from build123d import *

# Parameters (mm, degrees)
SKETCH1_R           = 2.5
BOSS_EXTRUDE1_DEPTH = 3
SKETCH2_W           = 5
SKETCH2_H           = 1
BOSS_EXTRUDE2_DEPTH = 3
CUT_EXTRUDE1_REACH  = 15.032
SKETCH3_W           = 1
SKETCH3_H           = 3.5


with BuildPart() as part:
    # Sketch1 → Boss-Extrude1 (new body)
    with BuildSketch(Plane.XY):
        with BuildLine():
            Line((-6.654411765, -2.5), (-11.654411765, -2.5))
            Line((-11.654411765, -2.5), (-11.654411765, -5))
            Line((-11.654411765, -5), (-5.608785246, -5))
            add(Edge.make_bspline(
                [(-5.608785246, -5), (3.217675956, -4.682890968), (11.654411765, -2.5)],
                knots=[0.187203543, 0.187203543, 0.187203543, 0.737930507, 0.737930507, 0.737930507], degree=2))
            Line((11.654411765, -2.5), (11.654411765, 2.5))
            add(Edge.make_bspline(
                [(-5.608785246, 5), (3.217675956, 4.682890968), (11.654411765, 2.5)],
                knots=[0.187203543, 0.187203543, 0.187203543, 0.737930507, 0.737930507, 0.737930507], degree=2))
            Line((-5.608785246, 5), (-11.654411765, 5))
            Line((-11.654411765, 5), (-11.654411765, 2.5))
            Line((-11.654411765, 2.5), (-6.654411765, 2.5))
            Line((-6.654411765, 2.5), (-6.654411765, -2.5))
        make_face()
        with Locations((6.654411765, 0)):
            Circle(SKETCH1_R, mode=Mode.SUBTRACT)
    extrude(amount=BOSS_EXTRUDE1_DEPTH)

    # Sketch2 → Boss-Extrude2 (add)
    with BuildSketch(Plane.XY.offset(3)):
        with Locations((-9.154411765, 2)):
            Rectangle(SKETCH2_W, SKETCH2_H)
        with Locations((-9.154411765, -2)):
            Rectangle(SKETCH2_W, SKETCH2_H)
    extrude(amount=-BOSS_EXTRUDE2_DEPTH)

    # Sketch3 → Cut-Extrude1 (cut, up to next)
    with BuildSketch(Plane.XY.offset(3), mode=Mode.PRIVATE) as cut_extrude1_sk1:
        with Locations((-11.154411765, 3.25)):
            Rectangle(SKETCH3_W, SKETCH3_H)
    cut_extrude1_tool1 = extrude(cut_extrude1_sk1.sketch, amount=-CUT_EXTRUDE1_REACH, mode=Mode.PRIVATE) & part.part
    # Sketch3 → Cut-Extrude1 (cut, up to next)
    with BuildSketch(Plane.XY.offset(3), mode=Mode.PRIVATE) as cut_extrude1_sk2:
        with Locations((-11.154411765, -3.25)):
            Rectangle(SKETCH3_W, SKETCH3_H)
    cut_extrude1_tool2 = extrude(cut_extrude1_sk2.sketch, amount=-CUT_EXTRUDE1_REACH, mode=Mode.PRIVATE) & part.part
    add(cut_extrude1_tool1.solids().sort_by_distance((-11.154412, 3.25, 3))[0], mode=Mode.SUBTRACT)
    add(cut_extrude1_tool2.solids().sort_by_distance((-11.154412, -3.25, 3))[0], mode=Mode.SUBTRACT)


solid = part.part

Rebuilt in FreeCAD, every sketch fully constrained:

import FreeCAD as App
import Part
import Sketcher

doc = App.newDocument("Part")
params = doc.addObject("Spreadsheet::Sheet", "Params")
for row, (alias, value) in enumerate([
    ("sketch1_diameter", "5 mm"),
    ("pad1_length", "3 mm"),
    ("sketch2_width", "5 mm"),
    ("sketch2_height", "1 mm"),
    ("pad2_length", "3 mm"),
    ("sketch3_width", "1 mm"),
    ("sketch3_height", "3.5 mm"),
    ("sketch4_width", "1 mm"),
    ("sketch4_height", "3.5 mm"),
], start=1):
    params.set(f"A{row}", alias)
    params.set(f"B{row}", "=" + value)
    params.setAlias(f"B{row}", alias)

body = doc.addObject("PartDesign::Body", "Body")

sketch1 = body.newObject("Sketcher::SketchObject", "Sketch")
sketch1.AttachmentSupport = (doc.getObject("XY_Plane"), [""])
sketch1.MapMode = "FlatFace"
sketch1.addGeometry(Part.LineSegment(App.Vector(-6.654412, -2.5, 0), App.Vector(-11.654412, -2.5, 0)), False)
sketch1.addGeometry(Part.LineSegment(App.Vector(-11.654412, -2.5, 0), App.Vector(-11.654412, -5, 0)), False)
sketch1.addGeometry(Part.LineSegment(App.Vector(-11.654412, -5, 0), App.Vector(-5.608785, -5, 0)), False)
sketch1.addGeometry(Part.BSplineCurve([App.Vector(-5.608785, -5, 0), App.Vector(3.217676, -4.682891, 0), App.Vector(11.654412, -2.5, 0)], [3, 3], [0.187203543, 0.737930507], False, 2, [1, 1, 1], False), False)
sketch1.addGeometry(Part.LineSegment(App.Vector(11.654412, -2.5, 0), App.Vector(11.654412, 2.5, 0)), False)
sketch1.addGeometry(Part.BSplineCurve([App.Vector(-5.608785, 5, 0), App.Vector(3.217676, 4.682891, 0), App.Vector(11.654412, 2.5, 0)], [3, 3], [0.187203543, 0.737930507], False, 2, [1, 1, 1], False), False)
sketch1.addGeometry(Part.LineSegment(App.Vector(-5.608785, 5, 0), App.Vector(-11.654412, 5, 0)), False)
sketch1.addGeometry(Part.LineSegment(App.Vector(-11.654412, 5, 0), App.Vector(-11.654412, 2.5, 0)), False)
sketch1.addGeometry(Part.LineSegment(App.Vector(-11.654412, 2.5, 0), App.Vector(-6.654412, 2.5, 0)), False)
sketch1.addGeometry(Part.LineSegment(App.Vector(-6.654412, 2.5, 0), App.Vector(-6.654412, -2.5, 0)), False)
sketch1.addGeometry(Part.Circle(App.Vector(6.654412, 0, 0), App.Vector(0, 0, 1), 2.5), False)
sketch1.addConstraint(Sketcher.Constraint("Block", 3))
sketch1.addConstraint(Sketcher.Constraint("Block", 5))
sketch1.addConstraint(Sketcher.Constraint("Coincident", 0, 2, 1, 1))
sketch1.addConstraint(Sketcher.Constraint("Coincident", 1, 2, 2, 1))
sketch1.addConstraint(Sketcher.Constraint("Coincident", 2, 2, 3, 1))
sketch1.addConstraint(Sketcher.Constraint("Coincident", 3, 2, 4, 1))
sketch1.addConstraint(Sketcher.Constraint("Coincident", 4, 2, 5, 2))
sketch1.addConstraint(Sketcher.Constraint("Coincident", 5, 1, 6, 1))
sketch1.addConstraint(Sketcher.Constraint("Coincident", 6, 2, 7, 1))
sketch1.addConstraint(Sketcher.Constraint("Coincident", 7, 2, 8, 1))
sketch1.addConstraint(Sketcher.Constraint("Coincident", 8, 2, 9, 1))
sketch1.addConstraint(Sketcher.Constraint("Coincident", 9, 2, 0, 1))
sketch1.addConstraint(Sketcher.Constraint("Horizontal", 0))
sketch1.addConstraint(Sketcher.Constraint("Vertical", 1))
sketch1.addConstraint(Sketcher.Constraint("Horizontal", 2))
sketch1.addConstraint(Sketcher.Constraint("Horizontal", 6))
sketch1.addConstraint(Sketcher.Constraint("Vertical", 7))
sketch1.addConstraint(Sketcher.Constraint("Horizontal", 8))
sketch1.addConstraint(Sketcher.Constraint("Vertical", 9))
sketch1.addConstraint(Sketcher.Constraint("Symmetric", 0, 2, 4, 2, -1, 1))
sketch1.addConstraint(Sketcher.Constraint("Symmetric", 4, 2, 7, 2, -2))
sketch1.addConstraint(Sketcher.Constraint("PointOnObject", 10, 3, -1))
sketch1.addConstraint(Sketcher.Constraint("Equal", 8, 4))
sketch1.addConstraint(Sketcher.Constraint("Diameter", 10, 5.0))
sketch1.addConstraint(Sketcher.Constraint("DistanceX", 10, 3, 4, 2, 5.0))
sketch1.setExpression("Constraints[23]", "Params.sketch1_diameter")
pad1 = body.newObject("PartDesign::Pad", "Pad")
pad1.Profile = sketch1
pad1.setExpression("Length", "Params.pad1_length")

sketch2 = body.newObject("Sketcher::SketchObject", "Sketch001")
sketch2.AttachmentSupport = (doc.getObject("XY_Plane"), [""])
sketch2.MapMode = "FlatFace"
sketch2.AttachmentOffset = App.Placement(App.Vector(0, 0, 3), App.Rotation())
sketch2.addGeometry(Part.LineSegment(App.Vector(-11.654412, 2.5, 0), App.Vector(-11.654412, 1.5, 0)), False)
sketch2.addGeometry(Part.LineSegment(App.Vector(-11.654412, 1.5, 0), App.Vector(-6.654412, 1.5, 0)), False)
sketch2.addGeometry(Part.LineSegment(App.Vector(-6.654412, 1.5, 0), App.Vector(-6.654412, 2.5, 0)), False)
sketch2.addGeometry(Part.LineSegment(App.Vector(-6.654412, 2.5, 0), App.Vector(-11.654412, 2.5, 0)), False)
sketch2.addGeometry(Part.LineSegment(App.Vector(-11.654412, -1.5, 0), App.Vector(-11.654412, -2.5, 0)), False)
sketch2.addGeometry(Part.LineSegment(App.Vector(-11.654412, -2.5, 0), App.Vector(-6.654412, -2.5, 0)), False)
sketch2.addGeometry(Part.LineSegment(App.Vector(-6.654412, -2.5, 0), App.Vector(-6.654412, -1.5, 0)), False)
sketch2.addGeometry(Part.LineSegment(App.Vector(-6.654412, -1.5, 0), App.Vector(-11.654412, -1.5, 0)), False)
sketch2.addConstraint(Sketcher.Constraint("Coincident", 0, 2, 1, 1))
sketch2.addConstraint(Sketcher.Constraint("Coincident", 1, 2, 2, 1))
sketch2.addConstraint(Sketcher.Constraint("Coincident", 2, 2, 3, 1))
sketch2.addConstraint(Sketcher.Constraint("Coincident", 3, 2, 0, 1))
sketch2.addConstraint(Sketcher.Constraint("Coincident", 4, 2, 5, 1))
sketch2.addConstraint(Sketcher.Constraint("Coincident", 5, 2, 6, 1))
sketch2.addConstraint(Sketcher.Constraint("Coincident", 6, 2, 7, 1))
sketch2.addConstraint(Sketcher.Constraint("Coincident", 7, 2, 4, 1))
sketch2.addConstraint(Sketcher.Constraint("Vertical", 0))
sketch2.addConstraint(Sketcher.Constraint("Horizontal", 1))
sketch2.addConstraint(Sketcher.Constraint("Vertical", 2))
sketch2.addConstraint(Sketcher.Constraint("Horizontal", 3))
sketch2.addConstraint(Sketcher.Constraint("Vertical", 4))
sketch2.addConstraint(Sketcher.Constraint("Horizontal", 5))
sketch2.addConstraint(Sketcher.Constraint("Vertical", 6))
sketch2.addConstraint(Sketcher.Constraint("Horizontal", 7))
sketch2.addConstraint(Sketcher.Constraint("Symmetric", 3, 2, 4, 2, -1))
sketch2.addConstraint(Sketcher.Constraint("Symmetric", 1, 2, 6, 2, -1))
sketch2.addConstraint(Sketcher.Constraint("DistanceX", 1, 1, 1, 2, 5.0))
sketch2.addConstraint(Sketcher.Constraint("DistanceY", 0, 2, 0, 1, 1.0))
sketch2.addConstraint(Sketcher.Constraint("DistanceY", 4, 2, 0, 2, 4.0))
sketch2.addConstraint(Sketcher.Constraint("DistanceX", 0, 2, -1, 1, 11.654412))
sketch2.setExpression("Constraints[18]", "Params.sketch2_width")
sketch2.setExpression("Constraints[19]", "Params.sketch2_height")
pad2 = body.newObject("PartDesign::Pad", "Pad001")
pad2.Profile = sketch2
pad2.setExpression("Length", "Params.pad2_length")
pad2.Reversed = True

sketch3 = body.newObject("Sketcher::SketchObject", "Sketch002")
sketch3.AttachmentSupport = (doc.getObject("XY_Plane"), [""])
sketch3.MapMode = "FlatFace"
sketch3.AttachmentOffset = App.Placement(App.Vector(0, 0, 3), App.Rotation())
sketch3.addGeometry(Part.LineSegment(App.Vector(-11.654412, 5, 0), App.Vector(-11.654412, 1.5, 0)), False)
sketch3.addGeometry(Part.LineSegment(App.Vector(-11.654412, 1.5, 0), App.Vector(-10.654412, 1.5, 0)), False)
sketch3.addGeometry(Part.LineSegment(App.Vector(-10.654412, 1.5, 0), App.Vector(-10.654412, 5, 0)), False)
sketch3.addGeometry(Part.LineSegment(App.Vector(-10.654412, 5, 0), App.Vector(-11.654412, 5, 0)), False)
sketch3.addConstraint(Sketcher.Constraint("Coincident", 0, 2, 1, 1))
sketch3.addConstraint(Sketcher.Constraint("Coincident", 1, 2, 2, 1))
sketch3.addConstraint(Sketcher.Constraint("Coincident", 2, 2, 3, 1))
sketch3.addConstraint(Sketcher.Constraint("Coincident", 3, 2, 0, 1))
sketch3.addConstraint(Sketcher.Constraint("Vertical", 0))
sketch3.addConstraint(Sketcher.Constraint("Horizontal", 1))
sketch3.addConstraint(Sketcher.Constraint("Vertical", 2))
sketch3.addConstraint(Sketcher.Constraint("Horizontal", 3))
sketch3.addConstraint(Sketcher.Constraint("DistanceX", 1, 1, 1, 2, 1.0))
sketch3.addConstraint(Sketcher.Constraint("DistanceY", 0, 2, 0, 1, 3.5))
sketch3.addConstraint(Sketcher.Constraint("DistanceY", -1, 1, 2, 2, 5.0))
sketch3.addConstraint(Sketcher.Constraint("DistanceX", 0, 2, -1, 1, 11.654412))
sketch3.setExpression("Constraints[8]", "Params.sketch3_width")
sketch3.setExpression("Constraints[9]", "Params.sketch3_height")
pocket1 = body.newObject("PartDesign::Pocket", "Pocket")
pocket1.Profile = sketch3
pocket1.Type = "UpToFirst"

sketch4 = body.newObject("Sketcher::SketchObject", "Sketch003")
sketch4.AttachmentSupport = (doc.getObject("XY_Plane"), [""])
sketch4.MapMode = "FlatFace"
sketch4.AttachmentOffset = App.Placement(App.Vector(0, 0, 3), App.Rotation())
sketch4.addGeometry(Part.LineSegment(App.Vector(-11.654412, -1.5, 0), App.Vector(-11.654412, -5, 0)), False)
sketch4.addGeometry(Part.LineSegment(App.Vector(-11.654412, -5, 0), App.Vector(-10.654412, -5, 0)), False)
sketch4.addGeometry(Part.LineSegment(App.Vector(-10.654412, -5, 0), App.Vector(-10.654412, -1.5, 0)), False)
sketch4.addGeometry(Part.LineSegment(App.Vector(-10.654412, -1.5, 0), App.Vector(-11.654412, -1.5, 0)), False)
sketch4.addConstraint(Sketcher.Constraint("Coincident", 0, 2, 1, 1))
sketch4.addConstraint(Sketcher.Constraint("Coincident", 1, 2, 2, 1))
sketch4.addConstraint(Sketcher.Constraint("Coincident", 2, 2, 3, 1))
sketch4.addConstraint(Sketcher.Constraint("Coincident", 3, 2, 0, 1))
sketch4.addConstraint(Sketcher.Constraint("Vertical", 0))
sketch4.addConstraint(Sketcher.Constraint("Horizontal", 1))
sketch4.addConstraint(Sketcher.Constraint("Vertical", 2))
sketch4.addConstraint(Sketcher.Constraint("Horizontal", 3))
sketch4.addConstraint(Sketcher.Constraint("DistanceX", 1, 1, 1, 2, 1.0))
sketch4.addConstraint(Sketcher.Constraint("DistanceY", 0, 2, 0, 1, 3.5))
sketch4.addConstraint(Sketcher.Constraint("DistanceY", 0, 2, -1, 1, 5.0))
sketch4.addConstraint(Sketcher.Constraint("DistanceX", 0, 2, -1, 1, 11.654412))
sketch4.setExpression("Constraints[8]", "Params.sketch4_width")
sketch4.setExpression("Constraints[9]", "Params.sketch4_height")
pocket2 = body.newObject("PartDesign::Pocket", "Pocket001")
pocket2.Profile = sketch4
pocket2.Type = "UpToFirst"

doc.recompute()
